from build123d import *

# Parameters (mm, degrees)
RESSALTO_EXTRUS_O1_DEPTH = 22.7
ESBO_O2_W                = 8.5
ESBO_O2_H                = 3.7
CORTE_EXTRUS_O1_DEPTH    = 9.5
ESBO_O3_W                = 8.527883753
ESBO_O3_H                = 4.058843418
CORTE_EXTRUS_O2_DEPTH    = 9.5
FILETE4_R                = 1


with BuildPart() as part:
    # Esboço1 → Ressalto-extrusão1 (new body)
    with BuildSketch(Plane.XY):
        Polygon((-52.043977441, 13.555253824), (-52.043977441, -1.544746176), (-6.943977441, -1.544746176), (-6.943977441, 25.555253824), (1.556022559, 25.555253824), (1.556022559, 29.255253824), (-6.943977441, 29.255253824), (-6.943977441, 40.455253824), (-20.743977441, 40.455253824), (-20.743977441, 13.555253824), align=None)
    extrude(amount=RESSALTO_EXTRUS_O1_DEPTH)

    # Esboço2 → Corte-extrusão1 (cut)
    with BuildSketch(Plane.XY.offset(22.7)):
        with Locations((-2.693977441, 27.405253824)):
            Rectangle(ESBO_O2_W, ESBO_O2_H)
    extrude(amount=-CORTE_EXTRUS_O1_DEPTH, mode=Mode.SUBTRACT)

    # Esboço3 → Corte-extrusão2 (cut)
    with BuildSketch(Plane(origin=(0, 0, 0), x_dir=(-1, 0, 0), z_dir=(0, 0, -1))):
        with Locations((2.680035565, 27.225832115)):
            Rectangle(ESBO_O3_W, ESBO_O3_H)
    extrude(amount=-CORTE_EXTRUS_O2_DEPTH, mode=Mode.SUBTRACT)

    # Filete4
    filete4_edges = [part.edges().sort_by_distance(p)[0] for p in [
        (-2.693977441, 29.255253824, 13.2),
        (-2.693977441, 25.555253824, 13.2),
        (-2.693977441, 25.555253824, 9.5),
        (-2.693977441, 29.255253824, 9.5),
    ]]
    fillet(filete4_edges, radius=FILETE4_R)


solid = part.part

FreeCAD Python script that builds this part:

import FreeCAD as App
import Part
import Sketcher


def edges_at(feature, points):
    """Names of the edges that pass closest to the given points."""
    edges = feature.Shape.Edges
    near = lambda p: min(range(len(edges)), key=lambda i: edges[i].distToShape(Part.Vertex(*p))[0])
    return sorted({f"Edge{near(p) + 1}" for p in points})

doc = App.newDocument("Part")
body = doc.addObject("PartDesign::Body", "Body")

sketch1 = body.newObject("Sketcher::SketchObject", "Sketch")
sketch1.AttachmentSupport = (doc.getObject("XY_Plane"), [""])
sketch1.MapMode = "FlatFace"
sketch1.addGeometry([
    Part.LineSegment(App.Vector(-52.043977, 13.555254, 0), App.Vector(-52.043977, -1.544746, 0)),
    Part.LineSegment(App.Vector(-52.043977, -1.544746, 0), App.Vector(-6.943977, -1.544746, 0)),
    Part.LineSegment(App.Vector(-6.943977, -1.544746, 0), App.Vector(-6.943977, 25.555254, 0)),
    Part.LineSegment(App.Vector(-6.943977, 25.555254, 0), App.Vector(1.556023, 25.555254, 0)),
    Part.LineSegment(App.Vector(1.556023, 25.555254, 0), App.Vector(1.556023, 29.255254, 0)),
    Part.LineSegment(App.Vector(1.556023, 29.255254, 0), App.Vector(-6.943977, 29.255254, 0)),
    Part.LineSegment(App.Vector(-6.943977, 29.255254, 0), App.Vector(-6.943977, 40.455254, 0)),
    Part.LineSegment(App.Vector(-6.943977, 40.455254, 0), App.Vector(-20.743977, 40.455254, 0)),
    Part.LineSegment(App.Vector(-20.743977, 40.455254, 0), App.Vector(-20.743977, 13.555254, 0)),
    Part.LineSegment(App.Vector(-20.743977, 13.555254, 0), App.Vector(-52.043977, 13.555254, 0)),
], False)
sketch1.addConstraint([
    Sketcher.Constraint("Coincident", 0, 2, 1, 1),
    Sketcher.Constraint("Coincident", 1, 2, 2, 1),
    Sketcher.Constraint("Coincident", 2, 2, 3, 1),
    Sketcher.Constraint("Coincident", 3, 2, 4, 1),
    Sketcher.Constraint("Coincident", 4, 2, 5, 1),
    Sketcher.Constraint("Coincident", 5, 2, 6, 1),
    Sketcher.Constraint("Coincident", 6, 2, 7, 1),
    Sketcher.Constraint("Coincident", 7, 2, 8, 1),
    Sketcher.Constraint("Coincident", 8, 2, 9, 1),
    Sketcher.Constraint("Coincident", 9, 2, 0, 1),
    Sketcher.Constraint("Vertical", 0),
    Sketcher.Constraint("Horizontal", 1),
    Sketcher.Constraint("Vertical", 2),
    Sketcher.Constraint("Horizontal", 3),
    Sketcher.Constraint("Vertical", 4),
    Sketcher.Constraint("Horizontal", 5),
    Sketcher.Constraint("Vertical", 6),
    Sketcher.Constraint("Horizontal", 7),
    Sketcher.Constraint("Vertical", 8),
    Sketcher.Constraint("Horizontal", 9),
    Sketcher.Constraint("Vertical", 2, 2, 5, 2),
    Sketcher.Constraint("DistanceX", 1, 1, 1, 2, 45.1),
    Sketcher.Constraint("DistanceX", 3, 1, 3, 2, 8.5),
    Sketcher.Constraint("DistanceX", 7, 2, 7, 1, 13.8),
    Sketcher.Constraint("DistanceY", 0, 2, 0, 1, 15.1),
    Sketcher.Constraint("DistanceY", 2, 1, 2, 2, 27.1),
    Sketcher.Constraint("DistanceY", 4, 1, 4, 2, 3.7),
    Sketcher.Constraint("DistanceY", 6, 1, 6, 2, 11.2),
    Sketcher.Constraint("DistanceX", 0, 2, -1, 1, 52.043977),
    Sketcher.Constraint("DistanceY", 0, 2, -1, 1, 1.544746),
])
pad1 = body.newObject("PartDesign::Pad", "Pad")
pad1.Profile = sketch1
pad1.Length = 22.7

sketch2 = body.newObject("Sketcher::SketchObject", "Sketch001")
sketch2.AttachmentSupport = (doc.getObject("XY_Plane"), [""])
sketch2.MapMode = "FlatFace"
sketch2.AttachmentOffset = App.Placement(App.Vector(0, 0, 22.7), App.Rotation())
sketch2.addGeometry([
    Part.LineSegment(App.Vector(-6.943977, 29.255254, 0), App.Vector(-6.943977, 25.555254, 0)),
    Part.LineSegment(App.Vector(-6.943977, 25.555254, 0), App.Vector(1.556023, 25.555254, 0)),
    Part.LineSegment(App.Vector(1.556023, 25.555254, 0), App.Vector(1.556023, 29.255254, 0)),
    Part.LineSegment(App.Vector(1.556023, 29.255254, 0), App.Vector(-6.943977, 29.255254, 0)),
], False)
sketch2.addConstraint([
    Sketcher.Constraint("Coincident", 0, 2, 1, 1),
    Sketcher.Constraint("Coincident", 1, 2, 2, 1),
    Sketcher.Constraint("Coincident", 2, 2, 3, 1),
    Sketcher.Constraint("Coincident", 3, 2, 0, 1),
    Sketcher.Constraint("Vertical", 0),
    Sketcher.Constraint("Horizontal", 1),
    Sketcher.Constraint("Vertical", 2),
    Sketcher.Constraint("Horizontal", 3),
    Sketcher.Constraint("DistanceX", 1, 1, 1, 2, 8.5),
    Sketcher.Constraint("DistanceY", 0, 2, 0, 1, 3.7),
    Sketcher.Constraint("DistanceX", 0, 2, -1, 1, 6.943977),
    Sketcher.Constraint("DistanceY", -1, 1, 0, 2, 25.555254),
])
pocket1 = body.newObject("PartDesign::Pocket", "Pocket")
pocket1.Profile = sketch2
pocket1.Length = 9.5

sketch3 = body.newObject("Sketcher::SketchObject", "Sketch002")
sketch3.AttachmentSupport = (doc.getObject("XY_Plane"), [""])
sketch3.MapMode = "FlatFace"
sketch3.addGeometry([
    Part.LineSegment(App.Vector(1.583906, 29.255254, 0), App.Vector(1.583906, 25.19641, 0)),
    Part.LineSegment(App.Vector(1.583906, 25.19641, 0), App.Vector(-6.943977, 25.19641, 0)),
    Part.LineSegment(App.Vector(-6.943977, 25.19641, 0), App.Vector(-6.943977, 29.255254, 0)),
    Part.LineSegment(App.Vector(-6.943977, 29.255254, 0), App.Vector(1.583906, 29.255254, 0)),
], False)
sketch3.addConstraint([
    Sketcher.Constraint("Coincident", 0, 2, 1, 1),
    Sketcher.Constraint("Coincident", 1, 2, 2, 1),
    Sketcher.Constraint("Coincident", 2, 2, 3, 1),
    Sketcher.Constraint("Coincident", 3, 2, 0, 1),
    Sketcher.Constraint("Vertical", 0),
    Sketcher.Constraint("Horizontal", 1),
    Sketcher.Constraint("Vertical", 2),
    Sketcher.Constraint("Horizontal", 3),
    Sketcher.Constraint("DistanceX", 1, 2, 1, 1, 8.527884),
    Sketcher.Constraint("DistanceY", 0, 2, 0, 1, 4.058843),
    Sketcher.Constraint("DistanceY", -1, 1, 0, 2, 25.19641),
    Sketcher.Constraint("DistanceX", -1, 1, 0, 2, 1.583906),
])
pocket2 = body.newObject("PartDesign::Pocket", "Pocket001")
pocket2.Profile = sketch3
pocket2.Length = 9.5
pocket2.Reversed = True
doc.recompute()

fillet = body.newObject("PartDesign::Fillet", "Fillet")
fillet.Base = (pocket2, edges_at(pocket2, [
    (-2.694, 29.255, 13.2),
    (-2.694, 25.555, 13.2),
    (-2.694, 25.555, 9.5),
    (-2.694, 29.255, 9.5),
]))
fillet.Radius = 1

doc.recompute()
